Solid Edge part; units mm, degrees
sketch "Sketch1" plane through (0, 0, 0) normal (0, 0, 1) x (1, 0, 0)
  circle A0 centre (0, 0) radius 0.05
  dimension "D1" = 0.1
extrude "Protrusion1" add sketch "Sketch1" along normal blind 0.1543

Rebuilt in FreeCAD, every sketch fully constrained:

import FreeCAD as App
import Part
import Sketcher
Q = App.Units.Quantity

doc = App.newDocument("Part")
body = doc.addObject("PartDesign::Body", "Body")

# Sketch on XY plane
sketch1 = body.newObject("Sketcher::SketchObject", "Sketch")
sketch1.AttachmentSupport = (doc.getObject("XY_Plane"), [""])
sketch1.MapMode = "FlatFace"
sketch1.addGeometry(Part.Circle(App.Vector(0, 0, 0), App.Vector(0, 0, 1), 0.05), False)
sketch1.addConstraint([
    Sketcher.Constraint("Coincident", 0, 3, -1, 1),
    Sketcher.Constraint("Diameter", 0, Q("0.1 mm")),
])
pad1 = body.newObject("PartDesign::Pad", "Pad")
pad1.Profile = sketch1
pad1.Length = 0.1543

doc.recompute()
